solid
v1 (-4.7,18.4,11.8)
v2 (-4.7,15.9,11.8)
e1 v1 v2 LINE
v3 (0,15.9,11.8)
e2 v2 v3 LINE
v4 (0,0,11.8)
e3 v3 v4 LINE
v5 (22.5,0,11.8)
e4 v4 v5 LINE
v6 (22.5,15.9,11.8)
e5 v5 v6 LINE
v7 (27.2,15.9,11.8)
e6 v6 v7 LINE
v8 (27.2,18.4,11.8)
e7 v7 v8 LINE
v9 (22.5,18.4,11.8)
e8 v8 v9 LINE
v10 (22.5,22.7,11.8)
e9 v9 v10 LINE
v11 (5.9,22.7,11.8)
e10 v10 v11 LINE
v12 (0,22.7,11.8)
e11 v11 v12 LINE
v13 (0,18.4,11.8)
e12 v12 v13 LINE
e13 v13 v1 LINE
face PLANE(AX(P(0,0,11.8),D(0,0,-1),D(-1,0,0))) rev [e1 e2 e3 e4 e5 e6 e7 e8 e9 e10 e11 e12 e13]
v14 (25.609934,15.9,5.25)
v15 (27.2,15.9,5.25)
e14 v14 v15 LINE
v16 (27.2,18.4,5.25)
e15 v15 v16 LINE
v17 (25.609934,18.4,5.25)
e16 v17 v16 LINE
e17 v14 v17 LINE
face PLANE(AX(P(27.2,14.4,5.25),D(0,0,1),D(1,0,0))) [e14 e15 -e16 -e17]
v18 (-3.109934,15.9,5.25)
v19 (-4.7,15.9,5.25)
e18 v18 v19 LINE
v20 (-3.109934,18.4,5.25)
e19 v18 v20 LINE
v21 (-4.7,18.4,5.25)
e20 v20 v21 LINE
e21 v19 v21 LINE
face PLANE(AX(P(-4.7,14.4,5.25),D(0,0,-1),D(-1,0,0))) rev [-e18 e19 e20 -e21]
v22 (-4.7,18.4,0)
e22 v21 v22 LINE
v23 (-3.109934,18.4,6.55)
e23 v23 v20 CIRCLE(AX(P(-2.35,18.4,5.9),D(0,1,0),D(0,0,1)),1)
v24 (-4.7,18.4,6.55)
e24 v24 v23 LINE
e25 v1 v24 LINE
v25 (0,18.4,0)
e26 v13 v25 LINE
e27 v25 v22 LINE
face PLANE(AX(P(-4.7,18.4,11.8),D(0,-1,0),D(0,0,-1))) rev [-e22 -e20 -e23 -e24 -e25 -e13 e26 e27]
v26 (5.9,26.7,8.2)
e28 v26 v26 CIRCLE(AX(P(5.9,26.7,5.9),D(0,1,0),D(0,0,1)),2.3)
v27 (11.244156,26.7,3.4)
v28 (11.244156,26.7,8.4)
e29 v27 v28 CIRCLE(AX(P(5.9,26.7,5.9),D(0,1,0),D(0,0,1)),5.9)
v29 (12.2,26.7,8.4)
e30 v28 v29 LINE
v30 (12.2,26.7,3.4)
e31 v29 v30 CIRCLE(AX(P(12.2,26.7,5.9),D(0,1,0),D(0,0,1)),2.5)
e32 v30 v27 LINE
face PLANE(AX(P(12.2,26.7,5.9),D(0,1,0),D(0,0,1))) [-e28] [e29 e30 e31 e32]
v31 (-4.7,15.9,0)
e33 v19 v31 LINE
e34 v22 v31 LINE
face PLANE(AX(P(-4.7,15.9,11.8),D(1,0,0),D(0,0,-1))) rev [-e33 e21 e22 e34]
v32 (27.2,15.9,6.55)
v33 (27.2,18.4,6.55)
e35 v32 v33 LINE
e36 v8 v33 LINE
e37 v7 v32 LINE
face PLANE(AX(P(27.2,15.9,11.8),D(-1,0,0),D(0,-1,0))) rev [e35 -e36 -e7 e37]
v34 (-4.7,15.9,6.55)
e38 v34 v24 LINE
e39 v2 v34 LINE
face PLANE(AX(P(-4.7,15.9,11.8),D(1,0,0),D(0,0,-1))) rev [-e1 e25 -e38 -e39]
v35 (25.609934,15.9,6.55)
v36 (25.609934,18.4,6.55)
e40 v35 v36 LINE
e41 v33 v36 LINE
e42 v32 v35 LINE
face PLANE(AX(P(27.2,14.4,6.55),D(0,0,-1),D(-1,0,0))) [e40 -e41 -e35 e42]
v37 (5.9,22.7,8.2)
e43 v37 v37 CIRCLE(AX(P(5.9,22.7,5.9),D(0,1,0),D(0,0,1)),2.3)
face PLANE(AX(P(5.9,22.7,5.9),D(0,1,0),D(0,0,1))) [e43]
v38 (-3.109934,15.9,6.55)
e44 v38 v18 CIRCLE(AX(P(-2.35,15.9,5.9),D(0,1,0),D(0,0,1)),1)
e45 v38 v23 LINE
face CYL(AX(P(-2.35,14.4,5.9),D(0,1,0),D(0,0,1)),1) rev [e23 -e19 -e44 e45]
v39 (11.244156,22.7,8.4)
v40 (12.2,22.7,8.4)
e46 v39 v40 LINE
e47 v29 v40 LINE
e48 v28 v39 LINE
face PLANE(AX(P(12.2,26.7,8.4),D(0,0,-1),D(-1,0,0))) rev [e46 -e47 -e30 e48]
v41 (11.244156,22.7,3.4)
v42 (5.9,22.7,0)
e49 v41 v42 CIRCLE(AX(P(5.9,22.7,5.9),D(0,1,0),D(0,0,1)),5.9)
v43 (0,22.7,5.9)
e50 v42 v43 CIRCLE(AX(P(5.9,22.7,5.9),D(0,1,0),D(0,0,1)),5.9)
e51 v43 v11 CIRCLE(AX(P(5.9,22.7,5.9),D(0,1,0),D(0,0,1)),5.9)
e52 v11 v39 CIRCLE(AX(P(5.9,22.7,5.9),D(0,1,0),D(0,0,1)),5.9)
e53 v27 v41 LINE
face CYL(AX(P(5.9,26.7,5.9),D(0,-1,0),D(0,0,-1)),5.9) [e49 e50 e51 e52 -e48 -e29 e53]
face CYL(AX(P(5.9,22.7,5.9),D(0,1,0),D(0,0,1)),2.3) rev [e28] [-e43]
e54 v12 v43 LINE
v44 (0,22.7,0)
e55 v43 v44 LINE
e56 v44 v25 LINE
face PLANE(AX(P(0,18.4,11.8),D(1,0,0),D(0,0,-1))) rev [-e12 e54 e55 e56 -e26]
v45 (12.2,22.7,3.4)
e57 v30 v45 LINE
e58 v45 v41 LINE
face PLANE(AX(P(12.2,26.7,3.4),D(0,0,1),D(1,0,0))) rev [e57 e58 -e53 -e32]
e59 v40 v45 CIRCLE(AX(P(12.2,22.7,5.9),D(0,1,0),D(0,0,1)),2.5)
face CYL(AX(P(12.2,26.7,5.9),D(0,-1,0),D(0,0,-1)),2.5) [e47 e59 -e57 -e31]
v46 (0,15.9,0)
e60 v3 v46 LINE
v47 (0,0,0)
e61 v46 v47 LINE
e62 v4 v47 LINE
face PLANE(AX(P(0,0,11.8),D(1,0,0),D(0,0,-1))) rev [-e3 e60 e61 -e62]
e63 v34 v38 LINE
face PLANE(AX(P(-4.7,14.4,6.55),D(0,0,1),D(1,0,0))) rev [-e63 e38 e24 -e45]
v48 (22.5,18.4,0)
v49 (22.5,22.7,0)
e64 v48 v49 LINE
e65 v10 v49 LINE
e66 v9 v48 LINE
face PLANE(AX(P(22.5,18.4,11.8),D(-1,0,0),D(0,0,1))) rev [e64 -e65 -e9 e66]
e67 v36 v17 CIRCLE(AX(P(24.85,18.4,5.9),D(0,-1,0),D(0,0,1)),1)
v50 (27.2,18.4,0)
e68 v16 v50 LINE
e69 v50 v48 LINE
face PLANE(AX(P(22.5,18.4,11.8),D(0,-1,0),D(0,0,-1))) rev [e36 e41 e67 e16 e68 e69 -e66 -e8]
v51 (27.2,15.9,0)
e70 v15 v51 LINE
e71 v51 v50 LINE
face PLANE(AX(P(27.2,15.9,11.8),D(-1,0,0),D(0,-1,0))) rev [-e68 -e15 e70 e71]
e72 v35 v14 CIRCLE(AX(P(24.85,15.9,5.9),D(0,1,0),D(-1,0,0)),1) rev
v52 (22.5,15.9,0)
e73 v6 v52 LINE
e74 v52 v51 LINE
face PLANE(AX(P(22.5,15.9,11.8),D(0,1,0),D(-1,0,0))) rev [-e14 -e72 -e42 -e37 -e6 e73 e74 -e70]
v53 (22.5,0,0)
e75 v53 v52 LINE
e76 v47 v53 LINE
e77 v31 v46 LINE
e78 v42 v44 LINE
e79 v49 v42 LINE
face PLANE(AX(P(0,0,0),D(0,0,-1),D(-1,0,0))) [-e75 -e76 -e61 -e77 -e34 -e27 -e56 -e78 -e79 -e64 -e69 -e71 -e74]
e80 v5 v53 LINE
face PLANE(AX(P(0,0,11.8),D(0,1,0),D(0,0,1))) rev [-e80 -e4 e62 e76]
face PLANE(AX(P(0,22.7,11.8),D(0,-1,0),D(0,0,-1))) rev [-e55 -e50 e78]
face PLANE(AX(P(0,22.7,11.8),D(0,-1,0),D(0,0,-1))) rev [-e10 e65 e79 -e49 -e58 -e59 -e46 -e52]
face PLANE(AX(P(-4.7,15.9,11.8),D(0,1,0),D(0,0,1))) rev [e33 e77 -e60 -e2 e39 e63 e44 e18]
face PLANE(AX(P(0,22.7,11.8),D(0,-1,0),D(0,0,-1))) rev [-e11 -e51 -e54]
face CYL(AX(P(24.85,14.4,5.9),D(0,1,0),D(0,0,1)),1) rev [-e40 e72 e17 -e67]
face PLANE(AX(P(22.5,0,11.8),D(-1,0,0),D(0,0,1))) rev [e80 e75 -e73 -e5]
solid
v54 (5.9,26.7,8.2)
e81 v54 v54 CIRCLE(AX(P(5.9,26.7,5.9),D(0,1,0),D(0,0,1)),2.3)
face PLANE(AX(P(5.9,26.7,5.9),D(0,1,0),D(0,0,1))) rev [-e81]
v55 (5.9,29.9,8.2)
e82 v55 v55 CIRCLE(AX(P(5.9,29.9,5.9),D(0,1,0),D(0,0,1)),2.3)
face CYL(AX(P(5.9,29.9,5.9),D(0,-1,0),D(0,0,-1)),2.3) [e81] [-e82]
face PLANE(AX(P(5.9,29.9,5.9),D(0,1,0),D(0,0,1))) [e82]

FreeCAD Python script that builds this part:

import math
import FreeCAD as App
import Part
import Sketcher

V = App.Vector

doc = App.newDocument("Part")
body = doc.addObject("PartDesign::Body", "Body")

sketch1 = body.newObject("Sketcher::SketchObject", "Sketch")
sketch1.AttachmentSupport = (doc.getObject("XY_Plane"), [""])
sketch1.MapMode = "FlatFace"
sketch1.addGeometry([
    Part.LineSegment(V(0, 0, 0), V(22.5, 0, 0)),
    Part.LineSegment(V(22.5, 0, 0), V(22.5, 15.9, 0)),
    Part.LineSegment(V(22.5, 15.9, 0), V(27.2, 15.9, 0)),
    Part.LineSegment(V(27.2, 15.9, 0), V(27.2, 18.4, 0)),
    Part.LineSegment(V(27.2, 18.4, 0), V(22.5, 18.4, 0)),
    Part.LineSegment(V(22.5, 18.4, 0), V(22.5, 22.7, 0)),
    Part.LineSegment(V(22.5, 22.7, 0), V(0, 22.7, 0)),
    Part.LineSegment(V(0, 22.7, 0), V(0, 18.4, 0)),
    Part.LineSegment(V(0, 18.4, 0), V(-4.7, 18.4, 0)),
    Part.LineSegment(V(-4.7, 18.4, 0), V(-4.7, 15.9, 0)),
    Part.LineSegment(V(-4.7, 15.9, 0), V(0, 15.9, 0)),
    Part.LineSegment(V(0, 15.9, 0), V(0, 0, 0)),
], False)
sketch1.addConstraint([
    Sketcher.Constraint("Coincident", 0, 2, 1, 1),
    Sketcher.Constraint("Coincident", 1, 2, 2, 1),
    Sketcher.Constraint("Coincident", 2, 2, 3, 1),
    Sketcher.Constraint("Coincident", 3, 2, 4, 1),
    Sketcher.Constraint("Coincident", 4, 2, 5, 1),
    Sketcher.Constraint("Coincident", 5, 2, 6, 1),
    Sketcher.Constraint("Coincident", 6, 2, 7, 1),
    Sketcher.Constraint("Coincident", 7, 2, 8, 1),
    Sketcher.Constraint("Coincident", 8, 2, 9, 1),
    Sketcher.Constraint("Coincident", 9, 2, 10, 1),
    Sketcher.Constraint("Coincident", 10, 2, 11, 1),
    Sketcher.Constraint("Coincident", 11, 2, 0, 1),
    Sketcher.Constraint("Horizontal", 0),
    Sketcher.Constraint("Vertical", 1),
    Sketcher.Constraint("Horizontal", 2),
    Sketcher.Constraint("Vertical", 3),
    Sketcher.Constraint("Horizontal", 4),
    Sketcher.Constraint("Vertical", 5),
    Sketcher.Constraint("Horizontal", 6),
    Sketcher.Constraint("Vertical", 7),
    Sketcher.Constraint("Horizontal", 8),
    Sketcher.Constraint("Vertical", 9),
    Sketcher.Constraint("Horizontal", 10),
    Sketcher.Constraint("Vertical", 11),
    Sketcher.Constraint("Coincident", 11, 2, -1, 1),
    Sketcher.Constraint("PointOnObject", 6, 2, -2),
    Sketcher.Constraint("Horizontal", 4, 2, 7, 2),
    Sketcher.Constraint("Horizontal", 2, 2, 9, 2),
    Sketcher.Constraint("Vertical", 1, 2, 4, 2),
    Sketcher.Constraint("Equal", 4, 8),
    Sketcher.Constraint("DistanceX", 0, 1, 0, 2, 22.5),
    Sketcher.Constraint("DistanceX", 2, 1, 2, 2, 4.7),
    Sketcher.Constraint("DistanceY", 1, 1, 1, 2, 15.9),
    Sketcher.Constraint("DistanceY", 3, 1, 3, 2, 2.5),
    Sketcher.Constraint("DistanceY", 5, 1, 5, 2, 4.3),
])
pad1 = body.newObject("PartDesign::Pad", "Pad")
pad1.Profile = sketch1
pad1.Length = 11.8

sketch2 = body.newObject("Sketcher::SketchObject", "Sketch001")
sketch2.AttachmentSupport = (doc.getObject("XZ_Plane"), [""])
sketch2.MapMode = "FlatFace"
sketch2.AttachmentOffset = App.Placement(V(0, 0, -22.7), App.Rotation())
sketch2.addGeometry([
    Part.LineSegment(V(12.2, 3.4, 0), V(11.2, 3.4, 0)),
    Part.ArcOfCircle(Part.Circle(V(5.9, 5.9, 0), V(0, 0, 1), 5.9), math.radians(25), math.radians(335)),
    Part.LineSegment(V(11.2, 8.4, 0), V(12.2, 8.4, 0)),
    Part.ArcOfCircle(Part.Circle(V(12.2, 5.9, 0), V(0, 0, 1), 2.5), math.radians(-90), math.radians(90)),
], False)
sketch2.addConstraint([
    Sketcher.Constraint("Coincident", 0, 2, 1, 2),
    Sketcher.Constraint("Coincident", 1, 1, 2, 1),
    Sketcher.Constraint("Tangent", 2, 2, 3, 2),
    Sketcher.Constraint("Tangent", 3, 1, 0, 1),
    Sketcher.Constraint("Horizontal", 0),
    Sketcher.Constraint("Horizontal", 2),
    Sketcher.Constraint("Horizontal", 1, 3, 3, 3),
    Sketcher.Constraint("Radius", 1, 5.9),
    Sketcher.Constraint("Radius", 3, 2.5),
    Sketcher.Constraint("DistanceX", -1, 1, 1, 3, 5.9),
    Sketcher.Constraint("DistanceY", -1, 1, 1, 3, 5.9),
    Sketcher.Constraint("DistanceX", -1, 1, 3, 3, 12.2),
])
pad2 = body.newObject("PartDesign::Pad", "Pad001")
pad2.Profile = sketch2
pad2.Length = 4
pad2.Reversed = True

sketch3 = body.newObject("Sketcher::SketchObject", "Sketch002")
sketch3.AttachmentSupport = (doc.getObject("XZ_Plane"), [""])
sketch3.MapMode = "FlatFace"
sketch3.AttachmentOffset = App.Placement(V(0, 0, -26.7), App.Rotation())
sketch3.addGeometry(Part.Circle(V(5.9, 5.9, 0), V(0, 0, 1), 2.3), False)
sketch3.addConstraint([
    Sketcher.Constraint("Diameter", 0, 4.6),
    Sketcher.Constraint("DistanceX", -1, 1, 0, 3, 5.9),
    Sketcher.Constraint("DistanceY", -1, 1, 0, 3, 5.9),
])
pocket1 = body.newObject("PartDesign::Pocket", "Pocket")
pocket1.Profile = sketch3
pocket1.Length = 4
pocket1.Reversed = True

sketch4 = body.newObject("Sketcher::SketchObject", "Sketch003")
sketch4.AttachmentSupport = (doc.getObject("XZ_Plane"), [""])
sketch4.MapMode = "FlatFace"
sketch4.AttachmentOffset = App.Placement(V(0, 0, -18.4), App.Rotation())
sketch4.addGeometry([
    Part.LineSegment(V(-4.7, 5.2, 0), V(-4.7, 6.5, 0)),
    Part.LineSegment(V(-4.7, 6.5, 0), V(-3.1, 6.5, 0)),
    Part.ArcOfCircle(Part.Circle(V(-2.4, 5.9, 0), V(0, 0, 1), 1), math.radians(-139), math.radians(139)),
    Part.LineSegment(V(-3.1, 5.2, 0), V(-4.7, 5.2, 0)),
], False)
sketch4.addConstraint([
    Sketcher.Constraint("Coincident", 0, 2, 1, 1),
    Sketcher.Constraint("Coincident", 1, 2, 2, 2),
    Sketcher.Constraint("Coincident", 2, 1, 3, 1),
    Sketcher.Constraint("Coincident", 3, 2, 0, 1),
    Sketcher.Constraint("Vertical", 0),
    Sketcher.Constraint("Horizontal", 1),
    Sketcher.Constraint("Horizontal", 3),
    Sketcher.Constraint("Vertical", 1, 2, 2, 1),
    Sketcher.Constraint("Radius", 2, 1.0),
    Sketcher.Constraint("DistanceY", 0, 1, 0, 2, 1.3),
    Sketcher.Constraint("DistanceY", -1, 1, 2, 3, 5.9),
    Sketcher.Constraint("DistanceX", 0, 2, -1, 1, 4.7),
    Sketcher.Constraint("DistanceX", 2, 3, -1, 1, 2.35),
])
pocket2 = body.newObject("PartDesign::Pocket", "Pocket001")
pocket2.Profile = sketch4
pocket2.Length = 4
pocket2.Reversed = True
doc.recompute()

datumplane = body.newObject("PartDesign::Plane", "DatumPlane")
datumplane.AttachmentSupport = (doc.getObject("YZ_Plane"), [""])
datumplane.MapMode = "FlatFace"
datumplane.AttachmentOffset = App.Placement(V(0, 0, 11.25), App.Rotation())
mirrored = body.newObject("PartDesign::Mirrored", "Mirrored")
mirrored.Originals = [pocket2]
mirrored.MirrorPlane = (datumplane, [""])
body.Tip = mirrored
body2 = doc.addObject("PartDesign::Body", "Body001")

sketch5 = body2.newObject("Sketcher::SketchObject", "Sketch004")
sketch5.AttachmentSupport = (doc.getObject("XZ_Plane001"), [""])
sketch5.MapMode = "FlatFace"
sketch5.AttachmentOffset = App.Placement(V(0, 0, -26.7), App.Rotation())
sketch5.addGeometry(Part.Circle(V(5.9, 5.9, 0), V(0, 0, 1), 2.3), False)
sketch5.addConstraint([
    Sketcher.Constraint("Diameter", 0, 4.6),
    Sketcher.Constraint("DistanceX", -1, 1, 0, 3, 5.9),
    Sketcher.Constraint("DistanceY", -1, 1, 0, 3, 5.9),
])
pad3 = body2.newObject("PartDesign::Pad", "Pad002")
pad3.Profile = sketch5
pad3.Length = 3.2
pad3.Reversed = True

doc.recompute()
